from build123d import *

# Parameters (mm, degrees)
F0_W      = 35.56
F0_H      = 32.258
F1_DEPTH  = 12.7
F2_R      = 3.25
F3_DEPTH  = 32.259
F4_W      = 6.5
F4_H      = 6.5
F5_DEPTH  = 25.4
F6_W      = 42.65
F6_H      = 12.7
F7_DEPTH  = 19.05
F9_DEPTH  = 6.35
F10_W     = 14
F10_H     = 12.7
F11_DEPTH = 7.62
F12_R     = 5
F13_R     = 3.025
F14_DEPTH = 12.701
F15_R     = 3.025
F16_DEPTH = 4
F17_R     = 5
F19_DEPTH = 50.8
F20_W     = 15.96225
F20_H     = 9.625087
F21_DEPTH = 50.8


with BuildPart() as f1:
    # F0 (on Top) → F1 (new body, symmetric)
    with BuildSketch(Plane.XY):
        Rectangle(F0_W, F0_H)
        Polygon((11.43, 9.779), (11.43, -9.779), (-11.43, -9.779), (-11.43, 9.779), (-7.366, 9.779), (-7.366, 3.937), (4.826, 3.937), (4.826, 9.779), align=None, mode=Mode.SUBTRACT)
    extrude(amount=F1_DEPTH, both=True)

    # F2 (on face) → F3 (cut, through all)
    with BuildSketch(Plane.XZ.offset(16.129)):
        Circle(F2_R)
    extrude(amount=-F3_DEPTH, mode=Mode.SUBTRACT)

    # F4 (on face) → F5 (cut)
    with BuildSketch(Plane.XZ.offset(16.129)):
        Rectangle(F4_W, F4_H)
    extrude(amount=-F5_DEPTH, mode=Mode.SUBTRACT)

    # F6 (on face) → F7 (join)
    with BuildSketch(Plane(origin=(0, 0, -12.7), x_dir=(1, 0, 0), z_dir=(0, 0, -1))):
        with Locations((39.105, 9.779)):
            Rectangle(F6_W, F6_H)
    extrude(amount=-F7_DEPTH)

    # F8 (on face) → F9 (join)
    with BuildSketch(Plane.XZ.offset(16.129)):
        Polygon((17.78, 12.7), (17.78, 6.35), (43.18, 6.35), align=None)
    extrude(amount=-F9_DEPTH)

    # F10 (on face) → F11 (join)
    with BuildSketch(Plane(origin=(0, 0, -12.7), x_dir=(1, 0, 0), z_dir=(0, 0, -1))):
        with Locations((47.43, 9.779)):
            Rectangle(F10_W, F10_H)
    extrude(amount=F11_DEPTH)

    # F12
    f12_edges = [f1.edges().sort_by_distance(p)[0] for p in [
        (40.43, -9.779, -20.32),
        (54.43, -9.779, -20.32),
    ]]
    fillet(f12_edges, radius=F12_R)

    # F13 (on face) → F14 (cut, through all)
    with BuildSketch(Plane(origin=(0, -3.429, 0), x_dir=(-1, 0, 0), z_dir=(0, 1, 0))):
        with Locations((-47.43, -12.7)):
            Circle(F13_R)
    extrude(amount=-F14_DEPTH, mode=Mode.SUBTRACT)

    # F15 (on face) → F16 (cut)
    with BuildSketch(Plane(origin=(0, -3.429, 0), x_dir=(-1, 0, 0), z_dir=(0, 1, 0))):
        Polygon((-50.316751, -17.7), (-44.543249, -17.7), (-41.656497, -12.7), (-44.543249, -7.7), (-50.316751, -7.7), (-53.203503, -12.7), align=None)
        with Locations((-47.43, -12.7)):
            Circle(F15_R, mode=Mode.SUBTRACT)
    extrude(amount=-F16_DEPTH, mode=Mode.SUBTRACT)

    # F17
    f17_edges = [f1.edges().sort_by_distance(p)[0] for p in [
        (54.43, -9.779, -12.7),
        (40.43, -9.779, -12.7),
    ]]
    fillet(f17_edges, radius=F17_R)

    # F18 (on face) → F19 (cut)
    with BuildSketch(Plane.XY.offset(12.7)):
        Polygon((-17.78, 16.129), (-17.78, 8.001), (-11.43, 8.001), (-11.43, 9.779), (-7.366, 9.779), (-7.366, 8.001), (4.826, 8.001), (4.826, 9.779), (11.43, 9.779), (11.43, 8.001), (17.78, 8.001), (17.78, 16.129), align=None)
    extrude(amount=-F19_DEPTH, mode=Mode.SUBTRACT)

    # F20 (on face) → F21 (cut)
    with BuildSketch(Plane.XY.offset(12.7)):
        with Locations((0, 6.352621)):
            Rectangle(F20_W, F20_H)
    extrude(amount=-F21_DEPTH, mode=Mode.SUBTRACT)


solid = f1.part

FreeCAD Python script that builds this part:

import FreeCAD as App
import Part
import Sketcher
Q = App.Units.Quantity


def edges_at(feature, points):
    """Names of the edges that pass closest to the given points."""
    edges = feature.Shape.Edges
    near = lambda p: min(range(len(edges)), key=lambda i: edges[i].distToShape(Part.Vertex(*p))[0])
    return sorted({f"Edge{near(p) + 1}" for p in points})


def add_polygon(sketch, points):
    """Adds a closed chain of lines whose ends are joined by coincident constraints."""
    first, n = sketch.GeometryCount, len(points)
    for a, b in zip(points, points[1:] + points[:1]):
        sketch.addGeometry(Part.LineSegment(App.Vector(*a, 0), App.Vector(*b, 0)), False)
    for i in range(n):
        sketch.addConstraint(Sketcher.Constraint("Coincident", first + i, 2, first + (i + 1) % n, 1))

doc = App.newDocument("Part")
params = doc.addObject("Spreadsheet::Sheet", "Params")
for row, (alias, value) in enumerate([
    ("sketch1_width", "1.4 in"),
    ("sketch1_width2", "0.9 in"),
    ("sketch1_width3", "0.26 in"),
    ("sketch1_width4", "0.16 in"),
    ("sketch1_height", "1.27 in"),
    ("pad1_length", "1 in"),
    ("pocket2_length", "1 in"),
    ("sketch4_height", "0.5 in"),
    ("pad2_length", "0.75 in"),
    ("sketch5_width", "1 in"),
    ("sketch5_height", "0.25 in"),
    ("pad3_length", "0.25 in"),
    ("sketch6_height", "0.5 in"),
    ("pad4_length", "0.3 in"),
    ("fillet_radius", "5 mm"),
    ("pocket4_length", "4 mm"),
    ("fillet2_radius", "5 mm"),
    ("sketch9_width", "1.4 in"),
    ("sketch9_width2", "0.25 in"),
    ("sketch9_width3", "0.16 in"),
    ("sketch9_width4", "0.48 in"),
    ("sketch9_height", "0.32 in"),
    ("pocket5_length", "2 in"),
    ("pocket6_length", "2 in"),
], start=1):
    params.set(f"A{row}", alias)
    params.set(f"B{row}", "=" + value)
    params.setAlias(f"B{row}", alias)

body = doc.addObject("PartDesign::Body", "Body")
body.AllowCompound = True

sketch1 = body.newObject("Sketcher::SketchObject", "Sketch")
sketch1.AttachmentSupport = (doc.getObject("XY_Plane"), [""])
sketch1.MapMode = "FlatFace"
add_polygon(sketch1, [(-17.8, 16.1), (-17.8, -16.1), (17.8, -16.1), (17.8, 16.1)])
add_polygon(sketch1, [(4.8, 9.8), (11.4, 9.8), (11.4, -9.8), (-11.4, -9.8), (-11.4, 9.8), (-7.4, 9.8), (-7.4, 3.9), (4.8, 3.9)])
sketch1.addConstraint([
    Sketcher.Constraint("Vertical", 0),
    Sketcher.Constraint("Horizontal", 1),
    Sketcher.Constraint("Vertical", 2),
    Sketcher.Constraint("Horizontal", 3),
    Sketcher.Constraint("Horizontal", 4),
    Sketcher.Constraint("Vertical", 5),
    Sketcher.Constraint("Horizontal", 6),
    Sketcher.Constraint("Vertical", 7),
    Sketcher.Constraint("Horizontal", 8),
    Sketcher.Constraint("Vertical", 9),
    Sketcher.Constraint("Horizontal", 10),
    Sketcher.Constraint("Vertical", 11),
    Sketcher.Constraint("Symmetric", 0, 2, 2, 2, -1, 1),
    Sketcher.Constraint("Symmetric", 4, 2, 6, 2, -1, 1),
    Sketcher.Constraint("Horizontal", 4, 2, 7, 2),
    Sketcher.Constraint("DistanceX", 1, 1, 1, 2, Q("1.4 in")),
    Sketcher.Constraint("DistanceX", 6, 2, 6, 1, Q("0.9 in")),
    Sketcher.Constraint("DistanceX", 4, 1, 4, 2, Q("0.26 in")),
    Sketcher.Constraint("DistanceX", 8, 1, 8, 2, Q("0.16 in")),
    Sketcher.Constraint("DistanceY", 0, 2, 0, 1, Q("1.27 in")),
    Sketcher.Constraint("DistanceY", 5, 2, 5, 1, Q("0.77 in")),
    Sketcher.Constraint("DistanceY", 9, 2, 9, 1, Q("0.23 in")),
])
sketch1.setExpression("Constraints[27]", "Params.sketch1_width")
sketch1.setExpression("Constraints[28]", "Params.sketch1_width2")
sketch1.setExpression("Constraints[29]", "Params.sketch1_width3")
sketch1.setExpression("Constraints[30]", "Params.sketch1_width4")
sketch1.setExpression("Constraints[31]", "Params.sketch1_height")
pad1 = body.newObject("PartDesign::Pad", "Pad")
pad1.Profile = sketch1
pad1.setExpression("Length", "Params.pad1_length")
pad1.Midplane = True

sketch2 = body.newObject("Sketcher::SketchObject", "Sketch001")
sketch2.AttachmentSupport = (doc.getObject("XZ_Plane"), [""])
sketch2.MapMode = "FlatFace"
sketch2.AttachmentOffset = App.Placement(App.Vector(0, 0, 0.635 * 25.4), App.Rotation())
sketch2.addGeometry(Part.Circle(App.Vector(0, 0, 0), App.Vector(0, 0, 1), 3.2), False)
sketch2.addConstraint([
    Sketcher.Constraint("Coincident", 0, 3, -1, 1),
    Sketcher.Constraint("Diameter", 0, Q("6.5 mm")),
])
pocket1 = body.newObject("PartDesign::Pocket", "Pocket")
pocket1.Profile = sketch2
pocket1.Type = "ThroughAll"

sketch3 = body.newObject("Sketcher::SketchObject", "Sketch002")
sketch3.AttachmentSupport = (doc.getObject("XZ_Plane"), [""])
sketch3.MapMode = "FlatFace"
sketch3.AttachmentOffset = App.Placement(App.Vector(0, 0, 0.635 * 25.4), App.Rotation())
add_polygon(sketch3, [(-3, 3), (-3, -3), (3, -3), (3, 3)])
sketch3.addConstraint([
    Sketcher.Constraint("Vertical", 0),
    Sketcher.Constraint("Horizontal", 1),
    Sketcher.Constraint("Vertical", 2),
    Sketcher.Constraint("Horizontal", 3),
    Sketcher.Constraint("Symmetric", 0, 2, 2, 2, -1, 1),
    Sketcher.Constraint("Equal", 3, 0),
    Sketcher.Constraint("DistanceX", 1, 1, 1, 2, Q("6.5 mm")),
])
pocket2 = body.newObject("PartDesign::Pocket", "Pocket001")
pocket2.Profile = sketch3
pocket2.setExpression("Length", "Params.pocket2_length")

sketch4 = body.newObject("Sketcher::SketchObject", "Sketch003")
sketch4.AttachmentSupport = (doc.getObject("XY_Plane"), [""])
sketch4.MapMode = "FlatFace"
sketch4.AttachmentOffset = App.Placement(App.Vector(0, 0, -0.5 * 25.4), App.Rotation())
add_polygon(sketch4, [(18, -16), (18, -3), (60, -3), (60, -16)])
sketch4.addConstraint([
    Sketcher.Constraint("Vertical", 0),
    Sketcher.Constraint("Horizontal", 1),
    Sketcher.Constraint("Vertical", 2),
    Sketcher.Constraint("Horizontal", 3),
    Sketcher.Constraint("DistanceY", 0, 1, 0, 2, Q("0.5 in")),
    Sketcher.Constraint("DistanceX", -1, 1, 0, 2, Q("0.7 in")),
    Sketcher.Constraint("DistanceY", 0, 2, -1, 1, Q("0.135 in")),
    Sketcher.Constraint("DistanceX", 1, 1, 1, 2, Q("42.65 mm")),
])
sketch4.setExpression("Constraints[8]", "Params.sketch4_height")
pad2 = body.newObject("PartDesign::Pad", "Pad001")
pad2.Profile = sketch4
pad2.setExpression("Length", "Params.pad2_length")

sketch5 = body.newObject("Sketcher::SketchObject", "Sketch004")
sketch5.AttachmentSupport = (doc.getObject("XZ_Plane"), [""])
sketch5.MapMode = "FlatFace"
sketch5.AttachmentOffset = App.Placement(App.Vector(0, 0, 0.635 * 25.4), App.Rotation())
add_polygon(sketch5, [(18, 13), (18, 6), (43, 6)])
sketch5.addConstraint([
    Sketcher.Constraint("Vertical", 0),
    Sketcher.Constraint("Horizontal", 1),
    Sketcher.Constraint("DistanceX", 1, 1, 1, 2, Q("1 in")),
    Sketcher.Constraint("DistanceY", 0, 2, 0, 1, Q("0.25 in")),
    Sketcher.Constraint("DistanceX", -1, 1, 0, 2, Q("0.7 in")),
    Sketcher.Constraint("DistanceY", -1, 1, 2, 2, Q("0.5 in")),
])
sketch5.setExpression("Constraints[5]", "Params.sketch5_width")
sketch5.setExpression("Constraints[6]", "Params.sketch5_height")
pad3 = body.newObject("PartDesign::Pad", "Pad002")
pad3.Profile = sketch5
pad3.setExpression("Length", "Params.pad3_length")
pad3.Reversed = True

sketch6 = body.newObject("Sketcher::SketchObject", "Sketch005")
sketch6.AttachmentSupport = (doc.getObject("XY_Plane"), [""])
sketch6.MapMode = "FlatFace"
sketch6.AttachmentOffset = App.Placement(App.Vector(0, 0, -0.5 * 25.4), App.Rotation())
add_polygon(sketch6, [(40, -16), (40, -3), (54, -3), (54, -16)])
sketch6.addConstraint([
    Sketcher.Constraint("Vertical", 0),
    Sketcher.Constraint("Horizontal", 1),
    Sketcher.Constraint("Vertical", 2),
    Sketcher.Constraint("Horizontal", 3),
    Sketcher.Constraint("DistanceY", 0, 1, 0, 2, Q("0.5 in")),
    Sketcher.Constraint("DistanceY", 0, 2, -1, 1, Q("0.135 in")),
    Sketcher.Constraint("DistanceX", 1, 1, 1, 2, Q("14 mm")),
    Sketcher.Constraint("DistanceX", -1, 1, 0, 2, Q("40.43 mm")),
])
sketch6.setExpression("Constraints[8]", "Params.sketch6_height")
pad4 = body.newObject("PartDesign::Pad", "Pad003")
pad4.Profile = sketch6
pad4.setExpression("Length", "Params.pad4_length")
pad4.Reversed = True
doc.recompute()

fillet = body.newObject("PartDesign::Fillet", "Fillet")
fillet.Base = (pad4, edges_at(pad4, [(40.43, -9.779, -20.32), (54.43, -9.779, -20.32)]))
fillet.setExpression("Radius", "Params.fillet_radius")

sketch7 = body.newObject("Sketcher::SketchObject", "Sketch006")
sketch7.AttachmentSupport = (doc.getObject("XZ_Plane"), [""])
sketch7.MapMode = "FlatFace"
sketch7.AttachmentOffset = App.Placement(App.Vector(0, 0, 0.135 * 25.4), App.Rotation())
sketch7.addGeometry(Part.Circle(App.Vector(47.4, -12.7, 0), App.Vector(0, 0, 1), 3), False)
sketch7.addConstraint([
    Sketcher.Constraint("DistanceY", 0, 3, -1, 1, Q("0.5 in")),
    Sketcher.Constraint("Diameter", 0, Q("6.05 mm")),
    Sketcher.Constraint("DistanceX", -1, 1, 0, 3, Q("47.43 mm")),
])
pocket3 = body.newObject("PartDesign::Pocket", "Pocket002")
pocket3.Profile = sketch7
pocket3.Type = "ThroughAll"
pocket3.Reversed = True

sketch8 = body.newObject("Sketcher::SketchObject", "Sketch007")
sketch8.AttachmentSupport = (doc.getObject("XZ_Plane"), [""])
sketch8.MapMode = "FlatFace"
sketch8.AttachmentOffset = App.Placement(App.Vector(0, 0, 0.135 * 25.4), App.Rotation())
add_polygon(sketch8, [(50.3, -17.7), (44.5, -17.7), (41.7, -12.7), (44.5, -7.7), (50.3, -7.7), (53.2, -12.7)])
sketch8.addGeometry(Part.Circle(App.Vector(47.4, -12.7, 0), App.Vector(0, 0, 1), 3), False)
sketch8.addConstraint([
    Sketcher.Constraint("Horizontal", 0),
    Sketcher.Constraint("Horizontal", 3),
    Sketcher.Constraint("Parallel", 1, 4),
    Sketcher.Constraint("Parallel", 2, 5),
    Sketcher.Constraint("Horizontal", 6, 3, 1, 2),
    Sketcher.Constraint("Horizontal", 1, 2, 4, 2),
    Sketcher.Constraint("Vertical", 0, 2, 2, 2),
    Sketcher.Constraint("Vertical", 3, 2, 5, 2),
    Sketcher.Constraint("Angle", 1, Q("120.000006 deg")),
    Sketcher.Constraint("DistanceY", 6, 3, -1, 1, Q("0.5 in")),
    Sketcher.Constraint("Diameter", 6, Q("6.05 mm")),
    Sketcher.Constraint("DistanceX", 0, 2, 0, 1, Q("5.773502 mm")),
    Sketcher.Constraint("DistanceX", -1, 1, 6, 3, Q("47.43 mm")),
    Sketcher.Constraint("DistanceY", 0, 2, -1, 1, Q("17.7 mm")),
    Sketcher.Constraint("DistanceX", -1, 1, 0, 2, Q("44.543249 mm")),
])
pocket4 = body.newObject("PartDesign::Pocket", "Pocket003")
pocket4.Profile = sketch8
pocket4.setExpression("Length", "Params.pocket4_length")
pocket4.Reversed = True
doc.recompute()

fillet2 = body.newObject("PartDesign::Fillet", "Fillet001")
fillet2.Base = (pocket4, edges_at(pocket4, [(54.43, -9.779, -12.7), (40.43, -9.779, -12.7)]))
fillet2.setExpression("Radius", "Params.fillet2_radius")

sketch9 = body.newObject("Sketcher::SketchObject", "Sketch008")
sketch9.AttachmentSupport = (doc.getObject("XY_Plane"), [""])
sketch9.MapMode = "FlatFace"
sketch9.AttachmentOffset = App.Placement(App.Vector(0, 0, 0.5 * 25.4), App.Rotation())
add_polygon(sketch9, [(-17.8, 16.1), (-17.8, 8), (-11.4, 8), (-11.4, 9.8), (-7.4, 9.8), (-7.4, 8), (4.8, 8), (4.8, 9.8), (11.4, 9.8), (11.4, 8), (17.8, 8), (17.8, 16.1)])
sketch9.addConstraint([
    Sketcher.Constraint("Vertical", 0),
    Sketcher.Constraint("Horizontal", 1),
    Sketcher.Constraint("Vertical", 2),
    Sketcher.Constraint("Horizontal", 3),
    Sketcher.Constraint("Vertical", 4),
    Sketcher.Constraint("Horizontal", 5),
    Sketcher.Constraint("Vertical", 6),
    Sketcher.Constraint("Horizontal", 7),
    Sketcher.Constraint("Vertical", 8),
    Sketcher.Constraint("Horizontal", 9),
    Sketcher.Constraint("Vertical", 10),
    Sketcher.Constraint("Horizontal", 11),
    Sketcher.Constraint("Symmetric", 2, 2, 7, 2, -2),
    Sketcher.Constraint("Symmetric", 0, 2, 9, 2, -2),
    Sketcher.Constraint("Horizontal", 1, 2, 4, 2),
    Sketcher.Constraint("DistanceX", 11, 2, 11, 1, Q("1.4 in")),
    Sketcher.Constraint("DistanceX", 1, 1, 1, 2, Q("0.25 in")),
    Sketcher.Constraint("DistanceX", 3, 1, 3, 2, Q("0.16 in")),
    Sketcher.Constraint("DistanceX", 5, 1, 5, 2, Q("0.48 in")),
    Sketcher.Constraint("DistanceY", 0, 2, 0, 1, Q("0.32 in")),
    Sketcher.Constraint("DistanceY", 2, 1, 2, 2, Q("0.07 in")),
    Sketcher.Constraint("DistanceY", -1, 1, 0, 2, Q("0.315 in")),
])
sketch9.setExpression("Constraints[27]", "Params.sketch9_width")
sketch9.setExpression("Constraints[28]", "Params.sketch9_width2")
sketch9.setExpression("Constraints[29]", "Params.sketch9_width3")
sketch9.setExpression("Constraints[30]", "Params.sketch9_width4")
sketch9.setExpression("Constraints[31]", "Params.sketch9_height")
pocket5 = body.newObject("PartDesign::Pocket", "Pocket004")
pocket5.Profile = sketch9
pocket5.setExpression("Length", "Params.pocket5_length")

sketch10 = body.newObject("Sketcher::SketchObject", "Sketch009")
sketch10.AttachmentSupport = (doc.getObject("XY_Plane"), [""])
sketch10.MapMode = "FlatFace"
sketch10.AttachmentOffset = App.Placement(App.Vector(0, 0, 0.5 * 25.4), App.Rotation())
add_polygon(sketch10, [(-8, 11), (-8, 2), (8, 2), (8, 11)])
sketch10.addConstraint([
    Sketcher.Constraint("Vertical", 0),
    Sketcher.Constraint("Horizontal", 1),
    Sketcher.Constraint("Vertical", 2),
    Sketcher.Constraint("Horizontal", 3),
    Sketcher.Constraint("DistanceX", 1, 1, 1, 2, Q("15.96225 mm")),
    Sketcher.Constraint("DistanceY", 0, 2, 0, 1, Q("9.625087 mm")),
    Sketcher.Constraint("DistanceX", 0, 2, -1, 1, Q("7.981125 mm")),
    Sketcher.Constraint("DistanceY", -1, 1, 0, 2, Q("1.540077 mm")),
])
pocket6 = body.newObject("PartDesign::Pocket", "Pocket005")
pocket6.Profile = sketch10
pocket6.setExpression("Length", "Params.pocket6_length")

doc.recompute()
